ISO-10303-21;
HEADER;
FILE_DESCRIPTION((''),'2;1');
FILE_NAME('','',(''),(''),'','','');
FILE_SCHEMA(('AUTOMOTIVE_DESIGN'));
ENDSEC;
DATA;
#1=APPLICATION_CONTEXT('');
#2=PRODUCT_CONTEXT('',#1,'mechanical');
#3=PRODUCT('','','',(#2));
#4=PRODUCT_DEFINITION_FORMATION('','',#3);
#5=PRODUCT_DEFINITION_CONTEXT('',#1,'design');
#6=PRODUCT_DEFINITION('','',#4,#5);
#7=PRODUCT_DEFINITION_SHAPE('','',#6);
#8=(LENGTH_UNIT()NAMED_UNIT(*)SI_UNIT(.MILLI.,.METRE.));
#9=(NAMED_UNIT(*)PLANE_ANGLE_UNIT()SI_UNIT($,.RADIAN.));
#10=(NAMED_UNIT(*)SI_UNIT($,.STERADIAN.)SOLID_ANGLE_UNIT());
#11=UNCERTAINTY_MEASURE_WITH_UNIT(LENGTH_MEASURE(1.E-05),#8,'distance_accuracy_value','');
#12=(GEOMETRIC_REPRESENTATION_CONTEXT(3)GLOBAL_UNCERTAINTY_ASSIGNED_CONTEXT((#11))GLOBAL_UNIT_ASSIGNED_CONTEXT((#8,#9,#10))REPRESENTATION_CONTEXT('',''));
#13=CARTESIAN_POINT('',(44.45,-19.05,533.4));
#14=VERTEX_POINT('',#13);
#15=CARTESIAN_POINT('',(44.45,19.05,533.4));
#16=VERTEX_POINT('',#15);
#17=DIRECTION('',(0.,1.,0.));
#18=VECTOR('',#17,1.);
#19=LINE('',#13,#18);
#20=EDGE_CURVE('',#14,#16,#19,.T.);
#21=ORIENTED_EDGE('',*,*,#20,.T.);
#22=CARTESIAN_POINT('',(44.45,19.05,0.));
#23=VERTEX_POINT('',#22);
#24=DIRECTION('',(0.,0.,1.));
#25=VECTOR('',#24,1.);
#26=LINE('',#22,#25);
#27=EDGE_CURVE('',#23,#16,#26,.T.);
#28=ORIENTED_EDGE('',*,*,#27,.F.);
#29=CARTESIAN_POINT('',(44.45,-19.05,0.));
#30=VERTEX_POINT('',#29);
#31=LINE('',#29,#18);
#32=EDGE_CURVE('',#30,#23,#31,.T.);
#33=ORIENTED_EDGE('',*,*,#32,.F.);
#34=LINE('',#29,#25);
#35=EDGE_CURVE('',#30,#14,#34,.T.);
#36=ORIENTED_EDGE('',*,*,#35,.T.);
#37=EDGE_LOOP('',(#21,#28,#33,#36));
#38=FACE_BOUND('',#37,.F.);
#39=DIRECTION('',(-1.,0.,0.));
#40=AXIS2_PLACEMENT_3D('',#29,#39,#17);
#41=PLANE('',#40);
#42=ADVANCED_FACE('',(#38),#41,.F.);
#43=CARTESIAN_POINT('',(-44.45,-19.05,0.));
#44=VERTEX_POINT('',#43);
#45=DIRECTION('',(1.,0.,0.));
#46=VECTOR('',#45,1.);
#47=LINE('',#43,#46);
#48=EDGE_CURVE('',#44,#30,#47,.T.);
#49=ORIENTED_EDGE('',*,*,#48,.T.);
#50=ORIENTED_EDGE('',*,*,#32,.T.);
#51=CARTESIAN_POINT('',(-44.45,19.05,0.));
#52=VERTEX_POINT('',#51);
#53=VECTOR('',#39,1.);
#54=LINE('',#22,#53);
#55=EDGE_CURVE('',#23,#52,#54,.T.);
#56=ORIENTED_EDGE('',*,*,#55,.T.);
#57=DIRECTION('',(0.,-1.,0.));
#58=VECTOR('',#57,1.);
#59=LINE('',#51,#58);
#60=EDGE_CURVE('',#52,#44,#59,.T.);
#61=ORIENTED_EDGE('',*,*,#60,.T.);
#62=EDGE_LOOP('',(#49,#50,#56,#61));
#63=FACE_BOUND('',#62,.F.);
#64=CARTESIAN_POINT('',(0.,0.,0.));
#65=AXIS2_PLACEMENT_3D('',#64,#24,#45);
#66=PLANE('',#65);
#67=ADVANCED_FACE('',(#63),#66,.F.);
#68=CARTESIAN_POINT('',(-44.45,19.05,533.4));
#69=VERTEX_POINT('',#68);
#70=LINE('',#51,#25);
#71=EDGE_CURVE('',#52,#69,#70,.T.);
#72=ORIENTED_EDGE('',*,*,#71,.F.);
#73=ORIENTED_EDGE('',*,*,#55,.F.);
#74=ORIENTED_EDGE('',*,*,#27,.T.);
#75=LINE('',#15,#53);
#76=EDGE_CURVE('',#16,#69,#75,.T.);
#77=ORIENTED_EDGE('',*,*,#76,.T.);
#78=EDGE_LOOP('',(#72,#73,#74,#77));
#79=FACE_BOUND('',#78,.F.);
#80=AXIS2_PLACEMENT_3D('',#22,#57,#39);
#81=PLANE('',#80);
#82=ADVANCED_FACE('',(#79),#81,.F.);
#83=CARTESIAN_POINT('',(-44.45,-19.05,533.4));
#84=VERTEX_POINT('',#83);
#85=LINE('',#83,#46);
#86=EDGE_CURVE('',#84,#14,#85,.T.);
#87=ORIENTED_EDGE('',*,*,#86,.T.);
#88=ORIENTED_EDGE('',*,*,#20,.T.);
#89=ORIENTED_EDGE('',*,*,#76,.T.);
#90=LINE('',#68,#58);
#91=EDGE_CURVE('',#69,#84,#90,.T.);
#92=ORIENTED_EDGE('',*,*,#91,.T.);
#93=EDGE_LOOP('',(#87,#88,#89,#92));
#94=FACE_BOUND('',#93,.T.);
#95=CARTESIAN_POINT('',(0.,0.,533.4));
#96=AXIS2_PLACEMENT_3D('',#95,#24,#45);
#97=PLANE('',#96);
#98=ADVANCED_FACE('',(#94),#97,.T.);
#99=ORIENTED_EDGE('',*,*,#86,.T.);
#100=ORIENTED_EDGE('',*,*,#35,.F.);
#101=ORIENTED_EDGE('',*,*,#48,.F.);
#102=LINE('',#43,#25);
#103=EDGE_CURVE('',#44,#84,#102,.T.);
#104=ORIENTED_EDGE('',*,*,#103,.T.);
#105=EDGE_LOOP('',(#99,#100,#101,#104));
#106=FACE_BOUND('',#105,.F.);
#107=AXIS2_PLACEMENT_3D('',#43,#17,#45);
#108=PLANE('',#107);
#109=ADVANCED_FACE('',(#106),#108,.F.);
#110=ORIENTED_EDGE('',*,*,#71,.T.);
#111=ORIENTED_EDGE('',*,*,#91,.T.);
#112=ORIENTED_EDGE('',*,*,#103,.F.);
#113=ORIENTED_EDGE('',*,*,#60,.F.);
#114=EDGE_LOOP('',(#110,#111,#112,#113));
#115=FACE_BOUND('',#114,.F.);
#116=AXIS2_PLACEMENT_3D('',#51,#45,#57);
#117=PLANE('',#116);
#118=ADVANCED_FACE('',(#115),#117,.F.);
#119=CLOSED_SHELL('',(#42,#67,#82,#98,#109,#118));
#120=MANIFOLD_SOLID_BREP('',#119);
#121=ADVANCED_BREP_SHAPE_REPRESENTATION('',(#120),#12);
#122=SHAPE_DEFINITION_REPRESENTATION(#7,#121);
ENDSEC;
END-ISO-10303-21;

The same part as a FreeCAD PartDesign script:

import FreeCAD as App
import Part
import Sketcher
Q = App.Units.Quantity


def add_polygon(sketch, points):
    """Adds a closed chain of lines whose ends are joined by coincident constraints."""
    first, n = sketch.GeometryCount, len(points)
    for a, b in zip(points, points[1:] + points[:1]):
        sketch.addGeometry(Part.LineSegment(App.Vector(*a, 0), App.Vector(*b, 0)), False)
    for i in range(n):
        sketch.addConstraint(Sketcher.Constraint("Coincident", first + i, 2, first + (i + 1) % n, 1))

doc = App.newDocument("Part")
body = doc.addObject("PartDesign::Body", "Body")

# Sketch on XY plane
sketch1 = body.newObject("Sketcher::SketchObject", "Sketch")
sketch1.AttachmentSupport = (doc.getObject("XY_Plane"), [""])
sketch1.MapMode = "FlatFace"
add_polygon(sketch1, [(-44, 19), (-44, -19), (44, -19), (44, 19)])  # lines 0-3
sketch1.addConstraint([
    Sketcher.Constraint("Vertical", 0),
    Sketcher.Constraint("Horizontal", 1),
    Sketcher.Constraint("Vertical", 2),
    Sketcher.Constraint("Horizontal", 3),
    Sketcher.Constraint("Symmetric", 0, 2, 2, 2, -1, 1),
    Sketcher.Constraint("DistanceX", 1, 1, 1, 2, Q("3.5 in")),
    Sketcher.Constraint("DistanceY", 0, 2, 0, 1, Q("1.5 in")),
])
pad1 = body.newObject("PartDesign::Pad", "Pad")
pad1.Profile = sketch1
pad1.Length = Q("21 in")

doc.recompute()
